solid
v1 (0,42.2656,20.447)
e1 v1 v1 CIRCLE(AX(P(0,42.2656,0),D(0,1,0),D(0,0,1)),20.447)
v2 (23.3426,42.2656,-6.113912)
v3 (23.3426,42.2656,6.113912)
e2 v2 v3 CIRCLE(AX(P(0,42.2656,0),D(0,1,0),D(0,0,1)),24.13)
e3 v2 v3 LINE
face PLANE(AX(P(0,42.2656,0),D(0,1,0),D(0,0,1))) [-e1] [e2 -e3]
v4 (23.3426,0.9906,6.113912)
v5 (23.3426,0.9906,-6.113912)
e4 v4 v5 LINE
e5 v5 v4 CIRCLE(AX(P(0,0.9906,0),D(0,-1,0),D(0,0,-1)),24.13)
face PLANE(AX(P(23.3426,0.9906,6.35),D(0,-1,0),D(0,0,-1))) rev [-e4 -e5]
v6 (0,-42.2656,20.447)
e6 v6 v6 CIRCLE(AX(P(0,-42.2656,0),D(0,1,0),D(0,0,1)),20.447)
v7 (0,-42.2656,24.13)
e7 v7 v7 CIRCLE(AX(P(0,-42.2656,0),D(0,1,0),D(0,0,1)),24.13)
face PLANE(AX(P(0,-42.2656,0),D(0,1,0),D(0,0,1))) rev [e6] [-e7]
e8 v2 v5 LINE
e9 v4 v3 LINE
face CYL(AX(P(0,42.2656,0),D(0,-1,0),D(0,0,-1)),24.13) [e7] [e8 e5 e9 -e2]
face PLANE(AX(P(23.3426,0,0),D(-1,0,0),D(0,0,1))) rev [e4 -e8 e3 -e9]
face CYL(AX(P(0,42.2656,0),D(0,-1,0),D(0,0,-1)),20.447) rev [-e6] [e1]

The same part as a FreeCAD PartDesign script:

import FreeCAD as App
import Part
import Sketcher

V = App.Vector
Q = App.Units.Quantity

doc = App.newDocument("Part")
body = doc.addObject("PartDesign::Body", "Body")

# Sketch on XZ plane
sketch1 = body.newObject("Sketcher::SketchObject", "Sketch")
sketch1.AttachmentSupport = (doc.getObject("XZ_Plane"), [""])
sketch1.MapMode = "FlatFace"
sketch1.addGeometry(Part.Circle(V(0, 0, 0), V(0, 0, 1), 24.13), False)
sketch1.addGeometry(Part.Circle(V(0, 0, 0), V(0, 0, 1), 20.447), False)
sketch1.addConstraint(Sketcher.Constraint("Coincident", 0, 3, -1, 1))
sketch1.addConstraint(Sketcher.Constraint("Coincident", 1, 3, -1, 1))
sketch1.addConstraint(Sketcher.Constraint("Diameter", 0, Q("1.9 in")))
sketch1.addConstraint(Sketcher.Constraint("Diameter", 1, Q("1.61 in")))
pad1 = body.newObject("PartDesign::Pad", "Pad")
pad1.Profile = sketch1
pad1.Length = Q("3.328 in")
pad1.Midplane = True

# Sketch on YZ plane
sketch2 = body.newObject("Sketcher::SketchObject", "Sketch001")
sketch2.AttachmentSupport = (doc.getObject("YZ_Plane"), [""])
sketch2.MapMode = "FlatFace"
sketch2.AttachmentOffset = App.Placement(V(0, 0, 0.95 * 25.4), App.Rotation())
sketch2.addGeometry(Part.LineSegment(V(42.2656, 6.35, 0), V(0.9906, 6.35, 0)), False)
sketch2.addGeometry(Part.LineSegment(V(0.9906, 6.35, 0), V(0.9906, -6.35, 0)), False)
sketch2.addGeometry(Part.LineSegment(V(0.9906, -6.35, 0), V(42.2656, -6.35, 0)), False)
sketch2.addGeometry(Part.LineSegment(V(42.2656, -6.35, 0), V(42.2656, 6.35, 0)), False)
sketch2.addConstraint(Sketcher.Constraint("Coincident", 0, 2, 1, 1))
sketch2.addConstraint(Sketcher.Constraint("Coincident", 1, 2, 2, 1))
sketch2.addConstraint(Sketcher.Constraint("Coincident", 2, 2, 3, 1))
sketch2.addConstraint(Sketcher.Constraint("Coincident", 3, 2, 0, 1))
sketch2.addConstraint(Sketcher.Constraint("Horizontal", 0))
sketch2.addConstraint(Sketcher.Constraint("Vertical", 1))
sketch2.addConstraint(Sketcher.Constraint("Horizontal", 2))
sketch2.addConstraint(Sketcher.Constraint("Vertical", 3))
sketch2.addConstraint(Sketcher.Constraint("DistanceY", 1, 2, 1, 1, Q("0.5 in")))
sketch2.addConstraint(Sketcher.Constraint("DistanceX", 0, 2, 0, 1, Q("1.625 in")))
sketch2.addConstraint(Sketcher.Constraint("DistanceY", -1, 1, 0, 2, Q("0.25 in")))
sketch2.addConstraint(Sketcher.Constraint("DistanceX", -1, 1, 0, 2, Q("0.039 in")))
pocket1 = body.newObject("PartDesign::Pocket", "Pocket")
pocket1.Profile = sketch2
pocket1.Length = Q("0.031 in")

doc.recompute()
